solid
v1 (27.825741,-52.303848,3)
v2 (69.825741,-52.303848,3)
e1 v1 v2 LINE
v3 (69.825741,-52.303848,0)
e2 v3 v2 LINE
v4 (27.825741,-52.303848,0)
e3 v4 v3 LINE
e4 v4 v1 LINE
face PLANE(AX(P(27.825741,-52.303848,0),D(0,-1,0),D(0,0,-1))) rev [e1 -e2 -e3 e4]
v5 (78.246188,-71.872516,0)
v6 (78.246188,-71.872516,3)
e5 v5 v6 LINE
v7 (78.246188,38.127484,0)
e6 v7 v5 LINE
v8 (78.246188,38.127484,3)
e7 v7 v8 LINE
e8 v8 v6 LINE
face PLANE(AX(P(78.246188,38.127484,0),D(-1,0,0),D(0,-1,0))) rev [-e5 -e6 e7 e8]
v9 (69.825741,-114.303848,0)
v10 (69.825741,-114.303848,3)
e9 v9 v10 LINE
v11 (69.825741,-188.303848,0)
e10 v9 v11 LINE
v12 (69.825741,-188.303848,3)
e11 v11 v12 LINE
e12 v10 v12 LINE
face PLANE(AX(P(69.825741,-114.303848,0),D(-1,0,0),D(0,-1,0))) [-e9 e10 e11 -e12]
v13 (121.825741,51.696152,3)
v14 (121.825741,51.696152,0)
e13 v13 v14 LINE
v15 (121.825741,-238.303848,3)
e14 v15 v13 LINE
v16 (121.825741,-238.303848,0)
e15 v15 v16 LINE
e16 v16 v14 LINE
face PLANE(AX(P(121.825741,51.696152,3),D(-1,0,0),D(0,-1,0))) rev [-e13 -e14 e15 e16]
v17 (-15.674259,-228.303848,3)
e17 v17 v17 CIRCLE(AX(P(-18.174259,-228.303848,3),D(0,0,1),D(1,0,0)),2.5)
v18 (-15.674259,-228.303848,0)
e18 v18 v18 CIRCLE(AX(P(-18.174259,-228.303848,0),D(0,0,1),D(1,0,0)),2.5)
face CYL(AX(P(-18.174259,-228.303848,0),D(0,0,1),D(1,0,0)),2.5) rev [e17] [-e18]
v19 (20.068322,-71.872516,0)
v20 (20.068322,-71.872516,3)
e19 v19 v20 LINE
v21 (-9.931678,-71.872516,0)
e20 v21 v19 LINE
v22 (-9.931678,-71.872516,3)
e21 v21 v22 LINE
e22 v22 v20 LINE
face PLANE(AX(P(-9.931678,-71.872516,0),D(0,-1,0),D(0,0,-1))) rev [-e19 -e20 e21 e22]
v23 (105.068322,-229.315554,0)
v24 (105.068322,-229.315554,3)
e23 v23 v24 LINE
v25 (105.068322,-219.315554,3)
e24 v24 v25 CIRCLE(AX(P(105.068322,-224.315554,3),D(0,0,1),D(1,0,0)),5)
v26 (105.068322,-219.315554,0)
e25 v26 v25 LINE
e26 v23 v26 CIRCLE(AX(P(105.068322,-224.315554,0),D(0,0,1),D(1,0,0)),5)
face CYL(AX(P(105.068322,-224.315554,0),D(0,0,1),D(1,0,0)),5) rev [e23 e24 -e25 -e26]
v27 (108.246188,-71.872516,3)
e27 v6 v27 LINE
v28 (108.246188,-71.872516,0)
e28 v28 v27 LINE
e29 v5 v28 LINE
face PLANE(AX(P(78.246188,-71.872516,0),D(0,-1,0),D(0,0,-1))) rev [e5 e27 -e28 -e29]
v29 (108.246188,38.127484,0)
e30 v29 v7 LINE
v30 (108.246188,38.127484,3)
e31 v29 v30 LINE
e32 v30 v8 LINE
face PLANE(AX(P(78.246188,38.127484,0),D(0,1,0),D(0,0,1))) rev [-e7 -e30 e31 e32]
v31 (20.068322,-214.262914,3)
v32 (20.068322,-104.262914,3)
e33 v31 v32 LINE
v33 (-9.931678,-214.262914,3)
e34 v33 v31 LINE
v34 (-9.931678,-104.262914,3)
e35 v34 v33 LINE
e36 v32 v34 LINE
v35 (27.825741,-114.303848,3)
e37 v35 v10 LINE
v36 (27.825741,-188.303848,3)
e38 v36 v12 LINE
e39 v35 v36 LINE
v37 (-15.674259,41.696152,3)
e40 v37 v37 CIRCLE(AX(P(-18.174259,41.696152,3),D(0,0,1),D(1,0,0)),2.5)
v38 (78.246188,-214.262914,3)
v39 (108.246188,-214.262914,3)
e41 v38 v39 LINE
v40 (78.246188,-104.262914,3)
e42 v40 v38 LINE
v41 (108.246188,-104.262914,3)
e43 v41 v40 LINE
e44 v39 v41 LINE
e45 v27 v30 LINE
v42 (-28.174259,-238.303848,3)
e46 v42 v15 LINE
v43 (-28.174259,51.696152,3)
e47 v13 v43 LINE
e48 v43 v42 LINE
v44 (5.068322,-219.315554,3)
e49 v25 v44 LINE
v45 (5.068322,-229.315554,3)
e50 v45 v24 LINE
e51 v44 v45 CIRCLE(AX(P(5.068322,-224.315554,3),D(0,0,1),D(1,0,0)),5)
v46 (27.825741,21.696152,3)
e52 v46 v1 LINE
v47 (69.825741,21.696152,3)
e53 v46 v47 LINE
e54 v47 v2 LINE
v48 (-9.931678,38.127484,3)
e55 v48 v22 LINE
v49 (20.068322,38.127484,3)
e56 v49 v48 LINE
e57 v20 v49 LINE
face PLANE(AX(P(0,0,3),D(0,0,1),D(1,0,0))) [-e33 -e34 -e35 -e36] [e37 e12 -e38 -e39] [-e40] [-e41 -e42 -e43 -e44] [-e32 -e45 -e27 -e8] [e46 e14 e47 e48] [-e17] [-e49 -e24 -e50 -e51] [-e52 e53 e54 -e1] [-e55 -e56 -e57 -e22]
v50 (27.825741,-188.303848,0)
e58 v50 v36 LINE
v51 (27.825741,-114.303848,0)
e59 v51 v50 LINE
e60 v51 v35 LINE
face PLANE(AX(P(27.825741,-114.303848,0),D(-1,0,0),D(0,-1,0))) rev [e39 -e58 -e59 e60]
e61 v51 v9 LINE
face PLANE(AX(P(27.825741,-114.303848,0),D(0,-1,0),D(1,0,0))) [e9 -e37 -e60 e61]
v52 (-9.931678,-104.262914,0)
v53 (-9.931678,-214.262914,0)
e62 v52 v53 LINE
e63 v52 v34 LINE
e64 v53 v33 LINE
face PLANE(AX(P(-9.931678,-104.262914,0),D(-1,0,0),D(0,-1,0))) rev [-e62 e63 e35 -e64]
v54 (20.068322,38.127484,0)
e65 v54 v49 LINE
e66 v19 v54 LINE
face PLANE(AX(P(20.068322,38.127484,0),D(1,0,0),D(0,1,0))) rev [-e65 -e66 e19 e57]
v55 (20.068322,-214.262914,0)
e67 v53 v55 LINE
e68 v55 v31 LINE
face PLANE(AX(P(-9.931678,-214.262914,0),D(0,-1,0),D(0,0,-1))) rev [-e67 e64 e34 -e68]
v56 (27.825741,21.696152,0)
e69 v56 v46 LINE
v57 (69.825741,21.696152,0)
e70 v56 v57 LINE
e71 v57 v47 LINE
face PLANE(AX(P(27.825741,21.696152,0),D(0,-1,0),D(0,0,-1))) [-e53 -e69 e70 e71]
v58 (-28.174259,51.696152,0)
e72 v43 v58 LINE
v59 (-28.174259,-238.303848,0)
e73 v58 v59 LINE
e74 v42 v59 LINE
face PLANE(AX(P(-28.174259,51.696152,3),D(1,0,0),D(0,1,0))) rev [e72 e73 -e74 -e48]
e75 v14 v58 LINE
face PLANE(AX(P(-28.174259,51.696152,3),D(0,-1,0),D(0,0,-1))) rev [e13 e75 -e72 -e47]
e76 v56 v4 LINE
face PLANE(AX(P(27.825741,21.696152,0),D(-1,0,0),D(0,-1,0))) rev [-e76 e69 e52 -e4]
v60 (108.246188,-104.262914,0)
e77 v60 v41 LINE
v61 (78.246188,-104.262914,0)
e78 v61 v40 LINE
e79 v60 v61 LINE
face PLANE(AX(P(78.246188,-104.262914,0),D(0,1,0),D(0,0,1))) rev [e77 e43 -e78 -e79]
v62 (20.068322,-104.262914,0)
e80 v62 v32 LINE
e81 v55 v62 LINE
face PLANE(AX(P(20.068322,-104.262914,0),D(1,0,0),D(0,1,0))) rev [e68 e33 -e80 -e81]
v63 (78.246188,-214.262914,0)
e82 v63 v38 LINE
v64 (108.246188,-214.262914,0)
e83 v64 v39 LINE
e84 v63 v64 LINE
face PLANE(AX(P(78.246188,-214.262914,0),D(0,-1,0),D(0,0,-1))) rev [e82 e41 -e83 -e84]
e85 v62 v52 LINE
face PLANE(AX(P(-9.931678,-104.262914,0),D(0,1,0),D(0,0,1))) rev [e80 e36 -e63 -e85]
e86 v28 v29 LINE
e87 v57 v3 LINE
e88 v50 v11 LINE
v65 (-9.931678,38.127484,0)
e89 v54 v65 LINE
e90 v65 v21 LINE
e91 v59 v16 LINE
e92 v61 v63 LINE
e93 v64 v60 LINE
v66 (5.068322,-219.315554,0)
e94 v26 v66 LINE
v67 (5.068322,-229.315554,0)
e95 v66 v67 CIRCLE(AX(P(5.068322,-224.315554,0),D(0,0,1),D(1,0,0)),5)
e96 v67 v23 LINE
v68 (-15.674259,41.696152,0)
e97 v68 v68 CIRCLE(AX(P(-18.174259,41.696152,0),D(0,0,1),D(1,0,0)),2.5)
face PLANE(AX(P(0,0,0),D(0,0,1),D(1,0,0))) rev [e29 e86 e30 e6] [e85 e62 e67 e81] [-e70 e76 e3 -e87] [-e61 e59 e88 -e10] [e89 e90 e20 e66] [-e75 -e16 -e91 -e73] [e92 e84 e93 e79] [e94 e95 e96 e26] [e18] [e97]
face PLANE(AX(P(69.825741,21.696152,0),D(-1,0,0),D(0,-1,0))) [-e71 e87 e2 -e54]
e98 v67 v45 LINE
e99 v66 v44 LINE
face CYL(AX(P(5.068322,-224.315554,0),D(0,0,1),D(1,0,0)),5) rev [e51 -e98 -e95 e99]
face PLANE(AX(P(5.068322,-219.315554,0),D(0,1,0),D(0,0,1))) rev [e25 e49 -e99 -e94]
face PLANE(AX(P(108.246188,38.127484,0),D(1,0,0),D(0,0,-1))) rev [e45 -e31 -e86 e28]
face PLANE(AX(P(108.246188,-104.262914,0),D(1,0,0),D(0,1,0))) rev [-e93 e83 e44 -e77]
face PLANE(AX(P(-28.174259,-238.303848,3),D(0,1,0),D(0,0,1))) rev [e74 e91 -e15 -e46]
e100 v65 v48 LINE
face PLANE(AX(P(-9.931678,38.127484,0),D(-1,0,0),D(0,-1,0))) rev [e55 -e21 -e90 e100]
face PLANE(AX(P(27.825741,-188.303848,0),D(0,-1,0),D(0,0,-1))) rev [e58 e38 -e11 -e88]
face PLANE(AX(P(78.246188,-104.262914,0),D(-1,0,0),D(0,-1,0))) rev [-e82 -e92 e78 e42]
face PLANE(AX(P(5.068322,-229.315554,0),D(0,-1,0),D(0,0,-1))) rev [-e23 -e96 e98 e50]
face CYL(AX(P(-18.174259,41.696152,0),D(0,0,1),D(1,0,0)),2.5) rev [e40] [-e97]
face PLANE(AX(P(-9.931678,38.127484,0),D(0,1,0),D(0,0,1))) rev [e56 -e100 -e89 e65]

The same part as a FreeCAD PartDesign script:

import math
import FreeCAD as App
import Part
import Sketcher


def add_polygon(sketch, points):
    """Adds a closed chain of lines whose ends are joined by coincident constraints."""
    first, n = sketch.GeometryCount, len(points)
    for a, b in zip(points, points[1:] + points[:1]):
        sketch.addGeometry(Part.LineSegment(App.Vector(*a, 0), App.Vector(*b, 0)), False)
    for i in range(n):
        sketch.addConstraint(Sketcher.Constraint("Coincident", first + i, 2, first + (i + 1) % n, 1))

doc = App.newDocument("Part")
body = doc.addObject("PartDesign::Body", "Body")

# Sketch on XY plane
sketch1 = doc.addObject("Sketcher::SketchObject", "Sketch")
body.addObject(sketch1)
sketch1.AttachmentSupport = (doc.XY_Plane, [""])
sketch1.MapMode = "FlatFace"
add_polygon(sketch1, [(-28.174259, 51.696152), (-28.174259, -238.303848), (121.825741, -238.303848), (121.825741, 51.696152)])  # lines 0-3
sketch1.addConstraint([
    Sketcher.Constraint("Vertical", 0),
    Sketcher.Constraint("Horizontal", 1),
    Sketcher.Constraint("Vertical", 2),
    Sketcher.Constraint("Horizontal", 3),
    Sketcher.Constraint("DistanceX", 1, 1, 1, 2, 150.0),
    Sketcher.Constraint("DistanceY", 0, 2, 0, 1, 290.0),
    Sketcher.Constraint("DistanceX", 0, 2, -1, 1, 28.174259),
    Sketcher.Constraint("DistanceY", 0, 2, -1, 1, 238.303848),
])
pad1 = doc.addObject("PartDesign::Pad", "Pad")
body.addObject(pad1)
pad1.Profile = sketch1
pad1.Length = 3

# Sketch on XY plane
sketch2 = doc.addObject("Sketcher::SketchObject", "Sketch001")
body.addObject(sketch2)
sketch2.AttachmentSupport = (doc.XY_Plane, [""])
sketch2.MapMode = "FlatFace"
sketch2.AttachmentOffset = App.Placement(App.Vector(0, 0, 3), App.Rotation())
add_polygon(sketch2, [(27.825741, 21.696152), (27.825741, -52.303848), (69.825741, -52.303848), (69.825741, 21.696152)])  # lines 0-3
add_polygon(sketch2, [(27.825741, -114.303848), (27.825741, -188.303848), (69.825741, -188.303848), (69.825741, -114.303848)])  # lines 4-7
sketch2.addConstraint([
    Sketcher.Constraint("Vertical", 0),
    Sketcher.Constraint("Horizontal", 1),
    Sketcher.Constraint("Vertical", 2),
    Sketcher.Constraint("Horizontal", 3),
    Sketcher.Constraint("Vertical", 4),
    Sketcher.Constraint("Horizontal", 5),
    Sketcher.Constraint("Vertical", 6),
    Sketcher.Constraint("Horizontal", 7),
    Sketcher.Constraint("Vertical", 3, 2, 4, 2),
    Sketcher.Constraint("Vertical", 2, 2, 5, 2),
    Sketcher.Constraint("Equal", 2, 4),
    Sketcher.Constraint("DistanceX", 1, 1, 1, 2, 42.0),
    Sketcher.Constraint("DistanceY", 0, 2, 0, 1, 74.0),
    Sketcher.Constraint("DistanceY", 4, 2, 0, 2, 136.0),
    Sketcher.Constraint("DistanceX", -1, 1, 0, 2, 27.825741),
    Sketcher.Constraint("DistanceY", 0, 2, -1, 1, 52.303848),
])
pocket1 = doc.addObject("PartDesign::Pocket", "Pocket")
body.addObject(pocket1)
pocket1.Profile = sketch2
pocket1.Length = 3

# Sketch on XY plane
sketch3 = doc.addObject("Sketcher::SketchObject", "Sketch002")
body.addObject(sketch3)
sketch3.AttachmentSupport = (doc.XY_Plane, [""])
sketch3.MapMode = "FlatFace"
sketch3.AttachmentOffset = App.Placement(App.Vector(0, 0, 3), App.Rotation())
sketch3.addGeometry([
    Part.Circle(App.Vector(-18.174259, 41.696152, 0), App.Vector(0, 0, 1), 2.5),
    Part.Circle(App.Vector(-18.174259, -228.303848, 0), App.Vector(0, 0, 1), 2.5),
], False)
sketch3.addConstraint([
    Sketcher.Constraint("Equal", 0, 1),
    Sketcher.Constraint("Vertical", 0, 3, 1, 3),
    Sketcher.Constraint("Diameter", 0, 5.0),
    Sketcher.Constraint("DistanceY", 1, 3, 0, 3, 270.0),
    Sketcher.Constraint("DistanceX", 0, 3, -1, 1, 18.174259),
    Sketcher.Constraint("DistanceY", -1, 1, 0, 3, 41.696152),
])
pocket2 = doc.addObject("PartDesign::Pocket", "Pocket001")
body.addObject(pocket2)
pocket2.Profile = sketch3
pocket2.Length = 3

# Sketch on XY plane
sketch4 = doc.addObject("Sketcher::SketchObject", "Sketch003")
body.addObject(sketch4)
sketch4.AttachmentSupport = (doc.XY_Plane, [""])
sketch4.MapMode = "FlatFace"
sketch4.AttachmentOffset = App.Placement(App.Vector(0, 0, 3), App.Rotation())
add_polygon(sketch4, [(-9.931678, 38.127484), (-9.931678, -71.872516), (20.068322, -71.872516), (20.068322, 38.127484)])  # lines 0-3
add_polygon(sketch4, [(78.246188, 38.127484), (78.246188, -71.872516), (108.246188, -71.872516), (108.246188, 38.127484)])  # lines 4-7
add_polygon(sketch4, [(-9.931678, -104.262914), (-9.931678, -214.262914), (20.068322, -214.262914), (20.068322, -104.262914)])  # lines 8-11
add_polygon(sketch4, [(78.246188, -104.262914), (78.246188, -214.262914), (108.246188, -214.262914), (108.246188, -104.262914)])  # lines 12-15
sketch4.addConstraint([
    Sketcher.Constraint("Vertical", 0),
    Sketcher.Constraint("Horizontal", 1),
    Sketcher.Constraint("Vertical", 2),
    Sketcher.Constraint("Horizontal", 3),
    Sketcher.Constraint("Vertical", 4),
    Sketcher.Constraint("Horizontal", 5),
    Sketcher.Constraint("Vertical", 6),
    Sketcher.Constraint("Horizontal", 7),
    Sketcher.Constraint("Vertical", 8),
    Sketcher.Constraint("Horizontal", 9),
    Sketcher.Constraint("Vertical", 10),
    Sketcher.Constraint("Horizontal", 11),
    Sketcher.Constraint("Vertical", 12),
    Sketcher.Constraint("Horizontal", 13),
    Sketcher.Constraint("Vertical", 14),
    Sketcher.Constraint("Horizontal", 15),
    Sketcher.Constraint("Horizontal", 1, 2, 4, 2),
    Sketcher.Constraint("Horizontal", 3, 2, 6, 2),
    Sketcher.Constraint("Horizontal", 9, 2, 12, 2),
    Sketcher.Constraint("Horizontal", 11, 2, 14, 2),
    Sketcher.Constraint("Vertical", 3, 2, 8, 2),
    Sketcher.Constraint("Vertical", 2, 2, 9, 2),
    Sketcher.Constraint("Vertical", 7, 2, 12, 2),
    Sketcher.Constraint("Vertical", 6, 2, 13, 2),
    Sketcher.Constraint("Equal", 3, 5),
    Sketcher.Constraint("Equal", 6, 8),
    Sketcher.Constraint("DistanceX", 1, 1, 1, 2, 30.0),
    Sketcher.Constraint("DistanceY", 0, 2, 0, 1, 110.0),
    Sketcher.Constraint("DistanceX", -1, 1, 4, 2, 78.246188),
    Sketcher.Constraint("DistanceX", 0, 2, -1, 1, 9.931678),
    Sketcher.Constraint("DistanceY", 0, 2, -1, 1, 71.872516),
    Sketcher.Constraint("DistanceY", 8, 2, -1, 1, 214.262914),
])
pocket3 = doc.addObject("PartDesign::Pocket", "Pocket002")
body.addObject(pocket3)
pocket3.Profile = sketch4
pocket3.Length = 3

# Sketch on XY plane
sketch5 = doc.addObject("Sketcher::SketchObject", "Sketch004")
body.addObject(sketch5)
sketch5.AttachmentSupport = (doc.XY_Plane, [""])
sketch5.MapMode = "FlatFace"
sketch5.AttachmentOffset = App.Placement(App.Vector(0, 0, 3), App.Rotation())
sketch5.addGeometry([
    Part.LineSegment(App.Vector(105.068322, -219.315554, 0), App.Vector(5.068322, -219.315554, 0)),
    Part.ArcOfCircle(Part.Circle(App.Vector(5.068322, -224.315554, 0), App.Vector(0, 0, 1), 5), math.radians(90), math.radians(270)),
    Part.LineSegment(App.Vector(5.068322, -229.315554, 0), App.Vector(105.068322, -229.315554, 0)),
    Part.ArcOfCircle(Part.Circle(App.Vector(105.068322, -224.315554, 0), App.Vector(0, 0, 1), 5), math.radians(-90), math.radians(90)),
], False)
sketch5.addConstraint([
    Sketcher.Constraint("Tangent", 0, 2, 1, 1),
    Sketcher.Constraint("Tangent", 1, 2, 2, 1),
    Sketcher.Constraint("Tangent", 2, 2, 3, 1),
    Sketcher.Constraint("Tangent", 3, 2, 0, 1),
    Sketcher.Constraint("Horizontal", 0),
    Sketcher.Constraint("Horizontal", 2),
    Sketcher.Constraint("Radius", 1, 5.0),
    Sketcher.Constraint("DistanceX", 0, 2, 0, 1, 100.0),
    Sketcher.Constraint("DistanceX", -1, 1, 1, 3, 5.068322),
    Sketcher.Constraint("DistanceY", 1, 3, -1, 1, 224.315554),
])
pocket4 = doc.addObject("PartDesign::Pocket", "Pocket003")
body.addObject(pocket4)
pocket4.Profile = sketch5
pocket4.Length = 3

doc.recompute()
